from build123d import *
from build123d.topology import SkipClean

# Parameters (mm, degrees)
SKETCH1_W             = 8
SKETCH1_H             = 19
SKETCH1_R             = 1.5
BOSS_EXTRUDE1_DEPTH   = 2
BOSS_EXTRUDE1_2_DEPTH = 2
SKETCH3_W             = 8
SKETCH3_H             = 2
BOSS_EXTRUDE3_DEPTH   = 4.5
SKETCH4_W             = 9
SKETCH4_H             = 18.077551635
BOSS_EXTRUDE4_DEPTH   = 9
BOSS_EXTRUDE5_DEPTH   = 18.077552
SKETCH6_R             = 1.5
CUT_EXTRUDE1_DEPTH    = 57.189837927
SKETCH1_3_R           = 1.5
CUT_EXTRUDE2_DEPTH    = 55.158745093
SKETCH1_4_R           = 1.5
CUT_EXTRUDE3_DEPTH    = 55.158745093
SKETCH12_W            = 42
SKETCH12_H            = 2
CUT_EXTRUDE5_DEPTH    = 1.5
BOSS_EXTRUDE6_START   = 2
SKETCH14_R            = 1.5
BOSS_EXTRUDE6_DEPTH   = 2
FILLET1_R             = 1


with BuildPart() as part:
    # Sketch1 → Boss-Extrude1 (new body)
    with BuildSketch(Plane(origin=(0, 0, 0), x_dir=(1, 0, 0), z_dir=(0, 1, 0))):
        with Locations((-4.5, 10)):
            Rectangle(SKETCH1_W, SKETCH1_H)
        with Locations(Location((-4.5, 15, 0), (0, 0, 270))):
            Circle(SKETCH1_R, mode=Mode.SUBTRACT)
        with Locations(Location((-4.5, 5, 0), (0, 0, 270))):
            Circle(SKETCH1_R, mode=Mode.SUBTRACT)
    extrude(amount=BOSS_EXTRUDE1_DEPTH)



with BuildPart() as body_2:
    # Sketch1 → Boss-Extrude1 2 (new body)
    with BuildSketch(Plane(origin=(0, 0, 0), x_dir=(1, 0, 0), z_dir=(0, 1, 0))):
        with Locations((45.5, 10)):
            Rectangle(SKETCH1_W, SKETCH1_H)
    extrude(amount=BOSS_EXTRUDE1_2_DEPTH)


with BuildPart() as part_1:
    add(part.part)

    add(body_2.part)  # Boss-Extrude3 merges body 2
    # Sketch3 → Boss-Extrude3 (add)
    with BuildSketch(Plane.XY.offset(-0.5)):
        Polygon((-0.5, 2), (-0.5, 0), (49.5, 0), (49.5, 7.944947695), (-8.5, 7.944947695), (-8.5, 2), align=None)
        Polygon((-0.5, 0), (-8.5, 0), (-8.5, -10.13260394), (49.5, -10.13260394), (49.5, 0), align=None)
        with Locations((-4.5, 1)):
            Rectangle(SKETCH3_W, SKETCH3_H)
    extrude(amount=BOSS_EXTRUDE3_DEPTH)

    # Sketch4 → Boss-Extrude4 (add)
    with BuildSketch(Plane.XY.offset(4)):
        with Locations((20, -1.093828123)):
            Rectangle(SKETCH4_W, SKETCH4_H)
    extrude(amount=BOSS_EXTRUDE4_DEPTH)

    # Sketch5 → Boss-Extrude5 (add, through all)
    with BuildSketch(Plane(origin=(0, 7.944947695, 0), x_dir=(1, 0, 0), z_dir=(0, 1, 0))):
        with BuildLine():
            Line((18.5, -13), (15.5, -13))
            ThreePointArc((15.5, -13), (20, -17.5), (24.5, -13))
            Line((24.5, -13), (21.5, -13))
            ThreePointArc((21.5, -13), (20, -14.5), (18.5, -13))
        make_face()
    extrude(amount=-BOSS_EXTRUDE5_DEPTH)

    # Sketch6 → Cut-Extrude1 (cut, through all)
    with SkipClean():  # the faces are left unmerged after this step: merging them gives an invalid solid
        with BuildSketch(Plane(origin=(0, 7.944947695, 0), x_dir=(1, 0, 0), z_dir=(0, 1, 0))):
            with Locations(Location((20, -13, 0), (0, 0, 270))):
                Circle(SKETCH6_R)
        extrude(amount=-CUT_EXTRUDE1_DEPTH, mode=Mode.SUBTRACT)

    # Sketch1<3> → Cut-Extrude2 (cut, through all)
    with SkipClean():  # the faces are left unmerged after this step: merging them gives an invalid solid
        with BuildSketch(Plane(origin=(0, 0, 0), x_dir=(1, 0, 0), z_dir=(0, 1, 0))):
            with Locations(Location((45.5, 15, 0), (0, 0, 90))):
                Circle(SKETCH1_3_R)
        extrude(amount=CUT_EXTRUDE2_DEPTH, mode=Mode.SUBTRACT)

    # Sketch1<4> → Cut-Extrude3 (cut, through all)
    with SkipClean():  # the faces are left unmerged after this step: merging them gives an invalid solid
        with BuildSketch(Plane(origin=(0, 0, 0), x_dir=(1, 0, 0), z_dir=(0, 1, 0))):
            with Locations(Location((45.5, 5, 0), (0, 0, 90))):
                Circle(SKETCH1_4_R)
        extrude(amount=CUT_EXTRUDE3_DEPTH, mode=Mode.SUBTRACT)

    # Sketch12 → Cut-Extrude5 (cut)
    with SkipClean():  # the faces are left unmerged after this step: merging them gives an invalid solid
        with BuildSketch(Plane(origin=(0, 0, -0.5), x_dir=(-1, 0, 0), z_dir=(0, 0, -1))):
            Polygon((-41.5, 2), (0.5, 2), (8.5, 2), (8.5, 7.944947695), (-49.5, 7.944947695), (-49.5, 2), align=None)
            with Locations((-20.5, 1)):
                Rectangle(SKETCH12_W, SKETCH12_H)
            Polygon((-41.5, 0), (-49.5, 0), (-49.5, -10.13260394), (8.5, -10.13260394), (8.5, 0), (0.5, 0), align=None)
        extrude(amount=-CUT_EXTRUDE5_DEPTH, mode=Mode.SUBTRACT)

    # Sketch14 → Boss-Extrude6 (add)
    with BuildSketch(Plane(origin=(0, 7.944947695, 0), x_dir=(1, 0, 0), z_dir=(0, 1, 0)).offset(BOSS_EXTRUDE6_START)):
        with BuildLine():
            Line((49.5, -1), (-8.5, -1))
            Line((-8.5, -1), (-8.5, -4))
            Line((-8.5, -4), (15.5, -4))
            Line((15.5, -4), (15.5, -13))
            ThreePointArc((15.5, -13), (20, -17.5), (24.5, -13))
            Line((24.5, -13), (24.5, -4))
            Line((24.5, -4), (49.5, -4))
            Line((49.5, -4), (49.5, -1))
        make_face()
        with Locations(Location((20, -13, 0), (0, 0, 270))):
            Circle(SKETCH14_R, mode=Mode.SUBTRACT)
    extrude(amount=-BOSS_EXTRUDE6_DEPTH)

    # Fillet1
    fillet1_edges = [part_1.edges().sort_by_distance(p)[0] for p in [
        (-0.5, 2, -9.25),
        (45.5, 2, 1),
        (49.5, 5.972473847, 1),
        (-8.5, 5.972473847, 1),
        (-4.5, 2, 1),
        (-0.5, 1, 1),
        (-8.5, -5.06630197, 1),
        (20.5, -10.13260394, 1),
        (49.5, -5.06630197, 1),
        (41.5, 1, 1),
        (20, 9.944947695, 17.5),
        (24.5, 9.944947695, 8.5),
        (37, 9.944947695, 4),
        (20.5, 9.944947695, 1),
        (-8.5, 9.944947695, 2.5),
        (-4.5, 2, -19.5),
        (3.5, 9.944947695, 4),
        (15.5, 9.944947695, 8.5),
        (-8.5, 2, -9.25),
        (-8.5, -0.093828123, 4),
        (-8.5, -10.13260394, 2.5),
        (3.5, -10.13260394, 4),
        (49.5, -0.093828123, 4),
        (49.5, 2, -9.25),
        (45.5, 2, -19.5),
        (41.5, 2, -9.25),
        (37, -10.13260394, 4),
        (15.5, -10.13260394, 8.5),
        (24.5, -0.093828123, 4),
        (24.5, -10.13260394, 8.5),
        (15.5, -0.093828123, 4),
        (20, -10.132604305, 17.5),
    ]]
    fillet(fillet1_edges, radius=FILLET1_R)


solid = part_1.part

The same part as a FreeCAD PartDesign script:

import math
import FreeCAD as App
import Part
import Sketcher

V = App.Vector
Q = App.Units.Quantity


def edges_at(feature, points):
    """Names of the edges that pass closest to the given points."""
    edges = feature.Shape.Edges
    near = lambda p: min(range(len(edges)), key=lambda i: edges[i].distToShape(Part.Vertex(*p))[0])
    return sorted({f"Edge{near(p) + 1}" for p in points})

doc = App.newDocument("Part")
params = doc.addObject("Spreadsheet::Sheet", "Params")
for row, (alias, value) in enumerate([
    ("sketch1_diameter", "3 mm"),
    ("sketch1_width", "8 mm"),
    ("sketch1_height", "19 mm"),
    ("pad1_length", "2 mm"),
    ("sketch2_width", "8 mm"),
    ("sketch2_height", "19 mm"),
    ("pad2_length", "2 mm"),
    ("sketch3_width", "58 mm"),
    ("pad3_length", "4.5 mm"),
    ("sketch4_width", "9 mm"),
    ("pad4_length", "9 mm"),
    ("sketch5_radius", "4.5 mm"),
    ("sketch5_radius2", "1.5 mm"),
    ("pad5_length", "18.077552 mm"),
    ("sketch6_diameter", "3 mm"),
    ("sketch7_diameter", "3 mm"),
    ("sketch8_diameter", "3 mm"),
    ("sketch9_width", "58 mm"),
    ("sketch9_width2", "8 mm"),
    ("sketch9_height", "2 mm"),
    ("pocket4_length", "1.5 mm"),
    ("sketch10_diameter", "3 mm"),
    ("sketch10_radius", "4.5 mm"),
    ("sketch10_width", "58 mm"),
    ("sketch10_width2", "24 mm"),
    ("sketch10_height", "3 mm"),
    ("pad6_length", "2 mm"),
    ("fillet_radius", "1 mm"),
], start=1):
    params.set(f"A{row}", alias)
    params.set(f"B{row}", "=" + value)
    params.setAlias(f"B{row}", alias)

body = doc.addObject("PartDesign::Body", "Body")

sketch1 = doc.addObject("Sketcher::SketchObject", "Sketch")
body.addObject(sketch1)
sketch1.AttachmentSupport = (doc.XZ_Plane, [""])
sketch1.MapMode = "FlatFace"
sketch1.addGeometry([
    Part.LineSegment(V(-8.5, -19.5, 0), V(-8.5, -0.5, 0)),
    Part.LineSegment(V(-8.5, -0.5, 0), V(-0.5, -0.5, 0)),
    Part.LineSegment(V(-0.5, -0.5, 0), V(-0.5, -19.5, 0)),
    Part.LineSegment(V(-0.5, -19.5, 0), V(-8.5, -19.5, 0)),
    Part.Circle(V(-4.5, -5, 0), V(0, 0, 1), 1.5),
    Part.Circle(V(-4.5, -15, 0), V(0, 0, 1), 1.5),
], False)
sketch1.addConstraint([
    Sketcher.Constraint("Coincident", 0, 2, 1, 1),
    Sketcher.Constraint("Coincident", 1, 2, 2, 1),
    Sketcher.Constraint("Coincident", 2, 2, 3, 1),
    Sketcher.Constraint("Coincident", 3, 2, 0, 1),
    Sketcher.Constraint("Vertical", 0),
    Sketcher.Constraint("Horizontal", 1),
    Sketcher.Constraint("Vertical", 2),
    Sketcher.Constraint("Horizontal", 3),
    Sketcher.Constraint("Equal", 4, 5),
    Sketcher.Constraint("Vertical", 4, 3, 5, 3),
    Sketcher.Constraint("Diameter", 4, Q("3 mm")),
    Sketcher.Constraint("DistanceX", 1, 1, 1, 2, Q("8 mm")),
    Sketcher.Constraint("DistanceY", 0, 1, 0, 2, Q("19 mm")),
    Sketcher.Constraint("DistanceY", 4, 3, -1, 1, Q("5 mm")),
    Sketcher.Constraint("DistanceY", 5, 3, -1, 1, Q("15 mm")),
    Sketcher.Constraint("DistanceX", 0, 2, 4, 3, Q("4 mm")),
    Sketcher.Constraint("DistanceX", 4, 3, -1, 1, Q("4.5 mm")),
    Sketcher.Constraint("DistanceY", 0, 2, -1, 1, Q("0.5 mm")),
])
sketch1.setExpression("Constraints[10]", "Params.sketch1_diameter")
sketch1.setExpression("Constraints[11]", "Params.sketch1_width")
sketch1.setExpression("Constraints[12]", "Params.sketch1_height")
pad1 = doc.addObject("PartDesign::Pad", "Pad")
body.addObject(pad1)
pad1.Profile = sketch1
pad1.setExpression("Length", "Params.pad1_length")
pad1.Reversed = True
body2 = doc.addObject("PartDesign::Body", "Body001")

sketch2 = doc.addObject("Sketcher::SketchObject", "Sketch001")
body2.addObject(sketch2)
sketch2.AttachmentSupport = (doc.getObject("XZ_Plane001"), [""])
sketch2.MapMode = "FlatFace"
sketch2.addGeometry([
    Part.LineSegment(V(42, -20, 0), V(42, 0, 0)),
    Part.LineSegment(V(42, 0, 0), V(50, 0, 0)),
    Part.LineSegment(V(50, 0, 0), V(50, -20, 0)),
    Part.LineSegment(V(50, -20, 0), V(42, -20, 0)),
], False)
sketch2.addConstraint([
    Sketcher.Constraint("Coincident", 0, 2, 1, 1),
    Sketcher.Constraint("Coincident", 1, 2, 2, 1),
    Sketcher.Constraint("Coincident", 2, 2, 3, 1),
    Sketcher.Constraint("Coincident", 3, 2, 0, 1),
    Sketcher.Constraint("Vertical", 0),
    Sketcher.Constraint("Horizontal", 1),
    Sketcher.Constraint("Vertical", 2),
    Sketcher.Constraint("Horizontal", 3),
    Sketcher.Constraint("DistanceX", 1, 1, 1, 2, Q("8 mm")),
    Sketcher.Constraint("DistanceY", 0, 1, 0, 2, Q("19 mm")),
    Sketcher.Constraint("DistanceX", -1, 1, 0, 2, Q("41.5 mm")),
    Sketcher.Constraint("DistanceY", 0, 2, -1, 1, Q("0.5 mm")),
])
sketch2.setExpression("Constraints[8]", "Params.sketch2_width")
sketch2.setExpression("Constraints[9]", "Params.sketch2_height")
pad2 = doc.addObject("PartDesign::Pad", "Pad001")
body2.addObject(pad2)
pad2.Profile = sketch2
pad2.setExpression("Length", "Params.pad2_length")
pad2.Reversed = True
body.AllowCompound = True
doc.recompute()

boolean = doc.addObject("PartDesign::Boolean", "Boolean")
body.addObject(boolean)
boolean.Type = "Fuse"
boolean.addObjects([body2])

sketch3 = doc.addObject("Sketcher::SketchObject", "Sketch002")
body.addObject(sketch3)
sketch3.AttachmentSupport = (doc.XY_Plane, [""])
sketch3.MapMode = "FlatFace"
sketch3.AttachmentOffset = App.Placement(V(0, 0, -0.5), App.Rotation())
sketch3.addGeometry([
    Part.LineSegment(V(-8, -10, 0), V(50, -10, 0)),
    Part.LineSegment(V(50, -10, 0), V(50, 8, 0)),
    Part.LineSegment(V(50, 8, 0), V(-8, 8, 0)),
    Part.LineSegment(V(-8, 8, 0), V(-8, -10, 0)),
], False)
sketch3.addConstraint([
    Sketcher.Constraint("Coincident", 0, 2, 1, 1),
    Sketcher.Constraint("Coincident", 1, 2, 2, 1),
    Sketcher.Constraint("Coincident", 2, 2, 3, 1),
    Sketcher.Constraint("Coincident", 3, 2, 0, 1),
    Sketcher.Constraint("Horizontal", 0),
    Sketcher.Constraint("Vertical", 1),
    Sketcher.Constraint("Horizontal", 2),
    Sketcher.Constraint("Vertical", 3),
    Sketcher.Constraint("DistanceX", 0, 1, 0, 2, Q("58 mm")),
    Sketcher.Constraint("DistanceX", -1, 1, 0, 2, Q("49.5 mm")),
    Sketcher.Constraint("DistanceY", 1, 1, 1, 2, Q("18.077552 mm")),
    Sketcher.Constraint("DistanceY", 0, 2, -1, 1, Q("10.132604 mm")),
])
sketch3.setExpression("Constraints[8]", "Params.sketch3_width")
pad3 = doc.addObject("PartDesign::Pad", "Pad002")
body.addObject(pad3)
pad3.Profile = sketch3
pad3.setExpression("Length", "Params.pad3_length")

sketch4 = doc.addObject("Sketcher::SketchObject", "Sketch003")
body.addObject(sketch4)
sketch4.AttachmentSupport = (doc.XY_Plane, [""])
sketch4.MapMode = "FlatFace"
sketch4.AttachmentOffset = App.Placement(V(0, 0, 4), App.Rotation())
sketch4.addGeometry([
    Part.LineSegment(V(16, 8, 0), V(16, -10, 0)),
    Part.LineSegment(V(16, -10, 0), V(24, -10, 0)),
    Part.LineSegment(V(24, -10, 0), V(24, 8, 0)),
    Part.LineSegment(V(24, 8, 0), V(16, 8, 0)),
], False)
sketch4.addConstraint([
    Sketcher.Constraint("Coincident", 0, 2, 1, 1),
    Sketcher.Constraint("Coincident", 1, 2, 2, 1),
    Sketcher.Constraint("Coincident", 2, 2, 3, 1),
    Sketcher.Constraint("Coincident", 3, 2, 0, 1),
    Sketcher.Constraint("Vertical", 0),
    Sketcher.Constraint("Horizontal", 1),
    Sketcher.Constraint("Vertical", 2),
    Sketcher.Constraint("Horizontal", 3),
    Sketcher.Constraint("DistanceX", 1, 1, 1, 2, Q("9 mm")),
    Sketcher.Constraint("DistanceX", -1, 1, 0, 2, Q("15.5 mm")),
    Sketcher.Constraint("DistanceY", 0, 2, 0, 1, Q("18.077552 mm")),
    Sketcher.Constraint("DistanceY", 0, 2, -1, 1, Q("10.132604 mm")),
])
sketch4.setExpression("Constraints[8]", "Params.sketch4_width")
pad4 = doc.addObject("PartDesign::Pad", "Pad003")
body.addObject(pad4)
pad4.Profile = sketch4
pad4.setExpression("Length", "Params.pad4_length")

sketch5 = doc.addObject("Sketcher::SketchObject", "Sketch004")
body.addObject(sketch5)
sketch5.AttachmentSupport = (doc.XZ_Plane, [""])
sketch5.MapMode = "FlatFace"
sketch5.AttachmentOffset = App.Placement(V(0, 0, -7.944948), App.Rotation())
sketch5.addGeometry([
    Part.LineSegment(V(18.5, 13, 0), V(15.5, 13, 0)),
    Part.ArcOfCircle(Part.Circle(V(20, 13, 0), V(0, 0, 1), 4.5), math.radians(0), math.radians(180)),
    Part.LineSegment(V(24.5, 13, 0), V(21.5, 13, 0)),
    Part.ArcOfCircle(Part.Circle(V(20, 13, 0), V(0, 0, 1), 1.5), math.radians(0), math.radians(180)),
], False)
sketch5.addConstraint([
    Sketcher.Constraint("Coincident", 0, 2, 1, 2),
    Sketcher.Constraint("Coincident", 1, 1, 2, 1),
    Sketcher.Constraint("Coincident", 2, 2, 3, 1),
    Sketcher.Constraint("Coincident", 3, 2, 0, 1),
    Sketcher.Constraint("Horizontal", 0),
    Sketcher.Constraint("Horizontal", 2),
    Sketcher.Constraint("Coincident", 3, 3, 1, 3),
    Sketcher.Constraint("Horizontal", 3, 3, 0, 2),
    Sketcher.Constraint("Horizontal", 0, 2, 1, 1),
    Sketcher.Constraint("Radius", 1, Q("4.5 mm")),
    Sketcher.Constraint("Radius", 3, Q("1.5 mm")),
    Sketcher.Constraint("DistanceX", -1, 1, 1, 3, Q("20 mm")),
    Sketcher.Constraint("DistanceY", -1, 1, 1, 3, Q("13 mm")),
])
sketch5.setExpression("Constraints[9]", "Params.sketch5_radius")
sketch5.setExpression("Constraints[10]", "Params.sketch5_radius2")
pad5 = doc.addObject("PartDesign::Pad", "Pad004")
body.addObject(pad5)
pad5.Profile = sketch5
pad5.setExpression("Length", "Params.pad5_length")

sketch6 = doc.addObject("Sketcher::SketchObject", "Sketch005")
body.addObject(sketch6)
sketch6.AttachmentSupport = (doc.XZ_Plane, [""])
sketch6.MapMode = "FlatFace"
sketch6.AttachmentOffset = App.Placement(V(0, 0, -7.944948), App.Rotation())
sketch6.addGeometry(Part.Circle(V(20, 13, 0), V(0, 0, 1), 1.5), False)
sketch6.addConstraint([
    Sketcher.Constraint("Diameter", 0, Q("3 mm")),
    Sketcher.Constraint("DistanceX", -1, 1, 0, 3, Q("20 mm")),
    Sketcher.Constraint("DistanceY", -1, 1, 0, 3, Q("13 mm")),
])
sketch6.setExpression("Constraints[0]", "Params.sketch6_diameter")
pocket1 = doc.addObject("PartDesign::Pocket", "Pocket")
body.addObject(pocket1)
pocket1.Profile = sketch6
pocket1.Type = "ThroughAll"
pocket1.Reversed = True

sketch7 = doc.addObject("Sketcher::SketchObject", "Sketch006")
body.addObject(sketch7)
sketch7.AttachmentSupport = (doc.XZ_Plane, [""])
sketch7.MapMode = "FlatFace"
sketch7.addGeometry(Part.Circle(V(45.5, -15, 0), V(0, 0, 1), 1.5), False)
sketch7.addConstraint([
    Sketcher.Constraint("Diameter", 0, Q("3 mm")),
    Sketcher.Constraint("DistanceY", 0, 3, -1, 1, Q("15 mm")),
    Sketcher.Constraint("DistanceX", -1, 1, 0, 3, Q("45.5 mm")),
])
sketch7.setExpression("Constraints[0]", "Params.sketch7_diameter")
pocket2 = doc.addObject("PartDesign::Pocket", "Pocket001")
body.addObject(pocket2)
pocket2.Profile = sketch7
pocket2.Type = "ThroughAll"

sketch8 = doc.addObject("Sketcher::SketchObject", "Sketch007")
body.addObject(sketch8)
sketch8.AttachmentSupport = (doc.XZ_Plane, [""])
sketch8.MapMode = "FlatFace"
sketch8.addGeometry(Part.Circle(V(45.5, -5, 0), V(0, 0, 1), 1.5), False)
sketch8.addConstraint([
    Sketcher.Constraint("Diameter", 0, Q("3 mm")),
    Sketcher.Constraint("DistanceY", 0, 3, -1, 1, Q("5 mm")),
    Sketcher.Constraint("DistanceX", -1, 1, 0, 3, Q("45.5 mm")),
])
sketch8.setExpression("Constraints[0]", "Params.sketch8_diameter")
pocket3 = doc.addObject("PartDesign::Pocket", "Pocket002")
body.addObject(pocket3)
pocket3.Profile = sketch8
pocket3.Type = "ThroughAll"

sketch9 = doc.addObject("Sketcher::SketchObject", "Sketch008")
body.addObject(sketch9)
sketch9.AttachmentSupport = (doc.XY_Plane, [""])
sketch9.MapMode = "FlatFace"
sketch9.AttachmentOffset = App.Placement(V(0, 0, -0.5), App.Rotation())
sketch9.addGeometry([
    Part.LineSegment(V(-8.5, 2, 0), V(-8.5, 7.9, 0)),
    Part.LineSegment(V(-8.5, 7.9, 0), V(49.5, 7.9, 0)),
    Part.LineSegment(V(49.5, 7.9, 0), V(49.5, 2, 0)),
    Part.LineSegment(V(49.5, 2, 0), V(41.5, 2, 0)),
    Part.LineSegment(V(41.5, 2, 0), V(-0.5, 2, 0)),
    Part.LineSegment(V(-0.5, 2, 0), V(-8.5, 2, 0)),
    Part.LineSegment(V(41.5, 2, 0), V(41.5, 0, 0)),
    Part.LineSegment(V(41.5, 0, 0), V(-0.5, 0, 0)),
    Part.LineSegment(V(-0.5, 0, 0), V(-0.5, 2, 0)),
    Part.LineSegment(V(-0.5, 2, 0), V(41.5, 2, 0)),
    Part.LineSegment(V(41.5, 0, 0), V(49.5, 0, 0)),
    Part.LineSegment(V(49.5, 0, 0), V(49.5, -10.1, 0)),
    Part.LineSegment(V(49.5, -10.1, 0), V(-8.5, -10.1, 0)),
    Part.LineSegment(V(-8.5, -10.1, 0), V(-8.5, 0, 0)),
    Part.LineSegment(V(-8.5, 0, 0), V(-0.5, 0, 0)),
    Part.LineSegment(V(-0.5, 0, 0), V(41.5, 0, 0)),
], False)
sketch9.addConstraint([
    Sketcher.Constraint("Coincident", 0, 2, 1, 1),
    Sketcher.Constraint("Coincident", 1, 2, 2, 1),
    Sketcher.Constraint("Coincident", 2, 2, 3, 1),
    Sketcher.Constraint("Coincident", 3, 2, 4, 1),
    Sketcher.Constraint("Coincident", 4, 2, 5, 1),
    Sketcher.Constraint("Coincident", 5, 2, 0, 1),
    Sketcher.Constraint("Coincident", 6, 2, 7, 1),
    Sketcher.Constraint("Coincident", 7, 2, 8, 1),
    Sketcher.Constraint("Coincident", 8, 2, 9, 1),
    Sketcher.Constraint("Coincident", 9, 2, 6, 1),
    Sketcher.Constraint("Coincident", 10, 2, 11, 1),
    Sketcher.Constraint("Coincident", 11, 2, 12, 1),
    Sketcher.Constraint("Coincident", 12, 2, 13, 1),
    Sketcher.Constraint("Coincident", 13, 2, 14, 1),
    Sketcher.Constraint("Coincident", 14, 2, 15, 1),
    Sketcher.Constraint("Coincident", 15, 2, 10, 1),
    Sketcher.Constraint("Vertical", 0),
    Sketcher.Constraint("Horizontal", 1),
    Sketcher.Constraint("Vertical", 2),
    Sketcher.Constraint("Horizontal", 3),
    Sketcher.Constraint("Horizontal", 4),
    Sketcher.Constraint("Horizontal", 5),
    Sketcher.Constraint("Vertical", 6),
    Sketcher.Constraint("Horizontal", 7),
    Sketcher.Constraint("Vertical", 8),
    Sketcher.Constraint("Horizontal", 9),
    Sketcher.Constraint("Horizontal", 10),
    Sketcher.Constraint("Vertical", 11),
    Sketcher.Constraint("Horizontal", 12),
    Sketcher.Constraint("Vertical", 13),
    Sketcher.Constraint("Horizontal", 14),
    Sketcher.Constraint("Horizontal", 15),
    Sketcher.Constraint("Coincident", 8, 2, 4, 2),
    Sketcher.Constraint("Coincident", 14, 2, 7, 2),
    Sketcher.Constraint("PointOnObject", 6, 2, -1),
    Sketcher.Constraint("Vertical", 3, 2, 6, 2),
    Sketcher.Constraint("Vertical", 2, 2, 10, 2),
    Sketcher.Constraint("Vertical", 5, 2, 12, 2),
    Sketcher.Constraint("Vertical", 9, 2, 15, 2),
    Sketcher.Constraint("Equal", 3, 5),
    Sketcher.Constraint("DistanceX", 1, 1, 1, 2, Q("58 mm")),
    Sketcher.Constraint("DistanceX", 3, 2, 3, 1, Q("8 mm")),
    Sketcher.Constraint("DistanceY", 6, 2, 6, 1, Q("2 mm")),
    Sketcher.Constraint("DistanceX", 0, 2, -1, 1, Q("8.5 mm")),
    Sketcher.Constraint("DistanceY", 0, 1, 0, 2, Q("5.944948 mm")),
    Sketcher.Constraint("DistanceY", 11, 2, 11, 1, Q("10.132604 mm")),
])
sketch9.setExpression("Constraints[40]", "Params.sketch9_width")
sketch9.setExpression("Constraints[41]", "Params.sketch9_width2")
sketch9.setExpression("Constraints[42]", "Params.sketch9_height")
pocket4 = doc.addObject("PartDesign::Pocket", "Pocket003")
body.addObject(pocket4)
pocket4.Profile = sketch9
pocket4.setExpression("Length", "Params.pocket4_length")
pocket4.Reversed = True

sketch10 = doc.addObject("Sketcher::SketchObject", "Sketch009")
body.addObject(sketch10)
sketch10.AttachmentSupport = (doc.XZ_Plane, [""])
sketch10.MapMode = "FlatFace"
sketch10.AttachmentOffset = App.Placement(V(0, 0, -9.944948), App.Rotation())
sketch10.addGeometry([
    Part.LineSegment(V(49.5, 1, 0), V(-8.5, 1, 0)),
    Part.LineSegment(V(-8.5, 1, 0), V(-8.5, 4, 0)),
    Part.LineSegment(V(-8.5, 4, 0), V(15.5, 4, 0)),
    Part.LineSegment(V(15.5, 4, 0), V(15.5, 13, 0)),
    Part.ArcOfCircle(Part.Circle(V(20, 13, 0), V(0, 0, 1), 4.5), math.radians(0), math.radians(180)),
    Part.LineSegment(V(24.5, 13, 0), V(24.5, 4, 0)),
    Part.LineSegment(V(24.5, 4, 0), V(49.5, 4, 0)),
    Part.LineSegment(V(49.5, 4, 0), V(49.5, 1, 0)),
    Part.Circle(V(20, 13, 0), V(0, 0, 1), 1.5),
], False)
sketch10.addConstraint([
    Sketcher.Constraint("Coincident", 0, 2, 1, 1),
    Sketcher.Constraint("Coincident", 1, 2, 2, 1),
    Sketcher.Constraint("Coincident", 2, 2, 3, 1),
    Sketcher.Constraint("Tangent", 3, 2, 4, 2),
    Sketcher.Constraint("Tangent", 4, 1, 5, 1),
    Sketcher.Constraint("Coincident", 5, 2, 6, 1),
    Sketcher.Constraint("Coincident", 6, 2, 7, 1),
    Sketcher.Constraint("Coincident", 7, 2, 0, 1),
    Sketcher.Constraint("Horizontal", 0),
    Sketcher.Constraint("Vertical", 1),
    Sketcher.Constraint("Horizontal", 2),
    Sketcher.Constraint("Vertical", 3),
    Sketcher.Constraint("Vertical", 5),
    Sketcher.Constraint("Horizontal", 6),
    Sketcher.Constraint("Vertical", 7),
    Sketcher.Constraint("Coincident", 8, 3, 4, 3),
    Sketcher.Constraint("Horizontal", 2, 2, 5, 2),
    Sketcher.Constraint("Diameter", 8, Q("3 mm")),
    Sketcher.Constraint("Radius", 4, Q("4.5 mm")),
    Sketcher.Constraint("DistanceX", 0, 2, 0, 1, Q("58 mm")),
    Sketcher.Constraint("DistanceX", 2, 1, 2, 2, Q("24 mm")),
    Sketcher.Constraint("DistanceY", 1, 1, 1, 2, Q("3 mm")),
    Sketcher.Constraint("DistanceY", 3, 1, 3, 2, Q("9 mm")),
    Sketcher.Constraint("DistanceX", -1, 1, 4, 3, Q("20 mm")),
    Sketcher.Constraint("DistanceY", -1, 1, 4, 3, Q("13 mm")),
])
sketch10.setExpression("Constraints[17]", "Params.sketch10_diameter")
sketch10.setExpression("Constraints[18]", "Params.sketch10_radius")
sketch10.setExpression("Constraints[19]", "Params.sketch10_width")
sketch10.setExpression("Constraints[20]", "Params.sketch10_width2")
sketch10.setExpression("Constraints[21]", "Params.sketch10_height")
pad6 = doc.addObject("PartDesign::Pad", "Pad005")
body.addObject(pad6)
pad6.Profile = sketch10
pad6.setExpression("Length", "Params.pad6_length")
doc.recompute()

fillet = doc.addObject("PartDesign::Fillet", "Fillet")
body.addObject(fillet)
fillet.Base = (pad6, edges_at(pad6, [
    (-0.5, 2, -10),
    (45.5, 2, 1),
    (49.5, 5.972, 1),
    (-8.5, 5.972, 1),
    (-4.5, 2, 1),
    (-0.5, 1, 1),
    (-8.5, -5.066, 1),
    (20.5, -10.133, 1),
    (49.5, -5.066, 1),
    (41.5, 1, 1),
    (20, 9.945, 17.5),
    (24.5, 9.945, 8.5),
    (37, 9.945, 4),
    (20.5, 9.945, 1),
    (-8.5, 9.945, 2.5),
    (-4.5, 2, -19.5),
    (3.5, 9.945, 4),
    (15.5, 9.945, 8.5),
    (-8.5, 2, -10),
    (-8.5, -0.094, 4),
    (-8.5, -10.133, 2.5),
    (3.5, -10.133, 4),
    (49.5, -0.094, 4),
    (49.5, 2, -10),
    (45.5, 2, -19.5),
    (41.5, 2, -10),
    (37, -10.133, 4),
    (15.5, -10.133, 8.5),
    (24.5, -0.094, 4),
    (24.5, -10.133, 8.5),
    (15.5, -0.094, 4),
    (20, -10.133, 17.5),
]))
fillet.setExpression("Radius", "Params.fillet_radius")

doc.recompute()
